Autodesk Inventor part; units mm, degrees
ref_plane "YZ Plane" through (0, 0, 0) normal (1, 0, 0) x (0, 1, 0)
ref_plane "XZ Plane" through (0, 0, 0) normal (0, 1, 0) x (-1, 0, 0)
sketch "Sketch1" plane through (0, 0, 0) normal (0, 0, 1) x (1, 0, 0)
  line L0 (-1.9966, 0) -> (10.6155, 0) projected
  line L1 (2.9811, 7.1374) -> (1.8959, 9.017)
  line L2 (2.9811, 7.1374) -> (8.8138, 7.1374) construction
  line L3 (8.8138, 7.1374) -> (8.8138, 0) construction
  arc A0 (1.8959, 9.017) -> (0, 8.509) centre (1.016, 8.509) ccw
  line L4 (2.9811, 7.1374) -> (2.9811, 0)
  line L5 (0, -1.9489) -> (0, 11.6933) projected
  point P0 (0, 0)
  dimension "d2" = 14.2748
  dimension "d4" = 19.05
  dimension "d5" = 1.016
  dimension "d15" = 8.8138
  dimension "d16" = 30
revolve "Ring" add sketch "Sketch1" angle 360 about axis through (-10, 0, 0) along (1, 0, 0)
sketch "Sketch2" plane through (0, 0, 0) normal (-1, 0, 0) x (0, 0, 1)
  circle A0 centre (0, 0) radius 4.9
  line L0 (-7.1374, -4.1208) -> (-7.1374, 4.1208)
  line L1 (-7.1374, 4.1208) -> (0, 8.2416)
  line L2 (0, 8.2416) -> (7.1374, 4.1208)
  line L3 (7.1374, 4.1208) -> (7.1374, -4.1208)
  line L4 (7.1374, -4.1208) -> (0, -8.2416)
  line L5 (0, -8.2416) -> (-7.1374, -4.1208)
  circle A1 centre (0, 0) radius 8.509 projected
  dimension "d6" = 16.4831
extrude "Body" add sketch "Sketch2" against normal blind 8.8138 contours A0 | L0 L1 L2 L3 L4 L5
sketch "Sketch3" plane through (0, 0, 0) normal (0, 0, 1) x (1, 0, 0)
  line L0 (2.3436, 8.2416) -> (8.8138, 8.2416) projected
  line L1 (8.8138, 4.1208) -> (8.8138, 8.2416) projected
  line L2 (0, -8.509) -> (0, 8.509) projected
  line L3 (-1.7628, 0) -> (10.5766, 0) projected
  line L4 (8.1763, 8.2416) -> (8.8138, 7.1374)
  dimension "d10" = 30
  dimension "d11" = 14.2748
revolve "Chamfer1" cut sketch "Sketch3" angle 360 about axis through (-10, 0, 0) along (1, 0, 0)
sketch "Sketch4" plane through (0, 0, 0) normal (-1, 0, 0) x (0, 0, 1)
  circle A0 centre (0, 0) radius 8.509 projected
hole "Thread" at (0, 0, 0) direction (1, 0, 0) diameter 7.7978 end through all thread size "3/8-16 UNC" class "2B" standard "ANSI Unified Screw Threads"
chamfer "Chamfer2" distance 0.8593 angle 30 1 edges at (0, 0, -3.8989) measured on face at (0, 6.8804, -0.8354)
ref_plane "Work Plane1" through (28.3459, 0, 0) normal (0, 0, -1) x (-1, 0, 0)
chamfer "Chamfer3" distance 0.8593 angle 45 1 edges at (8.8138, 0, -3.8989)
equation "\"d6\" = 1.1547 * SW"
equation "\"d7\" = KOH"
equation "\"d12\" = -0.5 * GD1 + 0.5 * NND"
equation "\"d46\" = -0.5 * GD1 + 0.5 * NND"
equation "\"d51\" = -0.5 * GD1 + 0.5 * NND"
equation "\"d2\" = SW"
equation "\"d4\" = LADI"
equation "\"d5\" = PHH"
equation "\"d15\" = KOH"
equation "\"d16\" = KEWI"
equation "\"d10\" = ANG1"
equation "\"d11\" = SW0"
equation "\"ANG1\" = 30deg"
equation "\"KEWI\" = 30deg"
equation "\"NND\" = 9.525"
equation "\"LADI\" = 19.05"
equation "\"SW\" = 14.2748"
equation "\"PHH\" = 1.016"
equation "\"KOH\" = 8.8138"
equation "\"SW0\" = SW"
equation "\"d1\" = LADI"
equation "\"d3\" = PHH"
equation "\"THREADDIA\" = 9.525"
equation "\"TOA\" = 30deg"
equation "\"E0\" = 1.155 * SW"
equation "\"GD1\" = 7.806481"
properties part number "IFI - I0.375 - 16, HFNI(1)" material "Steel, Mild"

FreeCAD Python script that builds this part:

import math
import FreeCAD as App
import Part
import Sketcher
from FreeCAD import Vector
Q = App.Units.Quantity


def edges_at(feature, points):
    """Names of the edges that pass closest to the given points."""
    edges = feature.Shape.Edges
    near = lambda p: min(range(len(edges)), key=lambda i: edges[i].distToShape(Part.Vertex(*p))[0])
    return sorted({f"Edge{near(p) + 1}" for p in points})

doc = App.newDocument("Part")
body = doc.addObject("PartDesign::Body", "Body")

# Sketch on XY plane
sketch1 = doc.addObject("Sketcher::SketchObject", "Sketch")
body.addObject(sketch1)
sketch1.AttachmentSupport = (doc.XY_Plane, [""])
sketch1.MapMode = "FlatFace"
sketch1.addGeometry([
    Part.LineSegment(Vector(0, 8.5, 0), Vector(0, 0, 0)),  # 0
    Part.LineSegment(Vector(0, 0, 0), Vector(3, 0, 0)),  # 1
    Part.LineSegment(Vector(3, 0, 0), Vector(3, 7.1, 0)),  # 2
    Part.LineSegment(Vector(3, 7.1, 0), Vector(1.9, 9, 0)),  # 3
    Part.ArcOfCircle(Part.Circle(Vector(1, 8.5, 0), Vector(0, 0, 1), 1), math.radians(30), math.radians(180)),  # 4
], False)
sketch1.addConstraint([
    Sketcher.Constraint("Coincident", 0, 2, 1, 1),
    Sketcher.Constraint("Coincident", 1, 2, 2, 1),
    Sketcher.Constraint("Coincident", 2, 2, 3, 1),
    Sketcher.Constraint("Tangent", 3, 2, 4, 1),
    Sketcher.Constraint("Tangent", 4, 2, 0, 1),
    Sketcher.Constraint("Vertical", 0),
    Sketcher.Constraint("Horizontal", 1),
    Sketcher.Constraint("Vertical", 2),
    Sketcher.Constraint("Coincident", 0, 2, -1, 1),
    Sketcher.Constraint("Radius", 4, Q("0.04 in")),
    Sketcher.Constraint("Angle", 3, Q("120.0003 deg")),
    Sketcher.Constraint("DistanceY", 0, 2, 0, 1, Q("0.335 in")),
    Sketcher.Constraint("DistanceY", 2, 1, 2, 2, Q("0.281 in")),
])
revolution = doc.addObject("PartDesign::Revolution", "Revolution")
body.addObject(revolution)
revolution.Profile = sketch1
revolution.ReferenceAxis = (sketch1, ["H_Axis"])
revolution.Angle = 360

# Sketch on YZ plane
sketch2 = doc.addObject("Sketcher::SketchObject", "Sketch001")
body.addObject(sketch2)
sketch2.AttachmentSupport = (doc.YZ_Plane, [""])
sketch2.MapMode = "FlatFace"
sketch2.addGeometry([
    Part.LineSegment(Vector(4, -7, 0), Vector(-4, -7, 0)),  # 0
    Part.LineSegment(Vector(-4, -7, 0), Vector(-8, 0, 0)),  # 1
    Part.LineSegment(Vector(-8, 0, 0), Vector(-4, 7, 0)),  # 2
    Part.LineSegment(Vector(-4, 7, 0), Vector(4, 7, 0)),  # 3
    Part.LineSegment(Vector(4, 7, 0), Vector(8, 0, 0)),  # 4
    Part.LineSegment(Vector(8, 0, 0), Vector(4, -7, 0)),  # 5
], False)
sketch2.addConstraint([
    Sketcher.Constraint("Coincident", 0, 2, 1, 1),
    Sketcher.Constraint("Coincident", 1, 2, 2, 1),
    Sketcher.Constraint("Coincident", 2, 2, 3, 1),
    Sketcher.Constraint("Coincident", 3, 2, 4, 1),
    Sketcher.Constraint("Coincident", 4, 2, 5, 1),
    Sketcher.Constraint("Coincident", 5, 2, 0, 1),
    Sketcher.Constraint("Horizontal", 0),
    Sketcher.Constraint("Horizontal", 3),
    Sketcher.Constraint("Symmetric", 0, 2, 3, 2, -1, 1),
    Sketcher.Constraint("Symmetric", 1, 2, 4, 2, -1, 1),
    Sketcher.Constraint("PointOnObject", 1, 2, -1),
    Sketcher.Constraint("Parallel", 2, 5),
    Sketcher.Constraint("Vertical", 0, 2, 2, 2),
    Sketcher.Constraint("Angle", 1, Q("120.0001 deg")),
    Sketcher.Constraint("DistanceX", 1, 2, 4, 2, 16.4832),
    Sketcher.Constraint("DistanceY", 0, 2, -1, 1, Q("0.281 in")),
])
pad1 = doc.addObject("PartDesign::Pad", "Pad")
body.addObject(pad1)
pad1.Profile = sketch2
pad1.Length = Q("0.347 in")

# Sketch on XY plane
sketch3 = doc.addObject("Sketcher::SketchObject", "Sketch002")
body.addObject(sketch3)
sketch3.AttachmentSupport = (doc.XY_Plane, [""])
sketch3.MapMode = "FlatFace"
sketch3.addGeometry([
    Part.LineSegment(Vector(8.8, 8.2, 0), Vector(8.2, 8.2, 0)),
    Part.LineSegment(Vector(8.2, 8.2, 0), Vector(8.8, 7.1, 0)),
    Part.LineSegment(Vector(8.8, 7.1, 0), Vector(8.8, 8.2, 0)),
], False)
sketch3.addConstraint([
    Sketcher.Constraint("Coincident", 0, 2, 1, 1),
    Sketcher.Constraint("Coincident", 1, 2, 2, 1),
    Sketcher.Constraint("Coincident", 2, 2, 0, 1),
    Sketcher.Constraint("Horizontal", 0),
    Sketcher.Constraint("Vertical", 2),
    Sketcher.Constraint("Angle", 1, Q("-60.0004 deg")),
    Sketcher.Constraint("DistanceX", 0, 2, 0, 1, Q("0.0251 in")),
    Sketcher.Constraint("DistanceX", -1, 1, 1, 2, Q("0.347 in")),
    Sketcher.Constraint("DistanceY", -1, 1, 1, 2, Q("0.281 in")),
])
groove = doc.addObject("PartDesign::Groove", "Groove")
body.addObject(groove)
groove.Profile = sketch3
groove.ReferenceAxis = (sketch3, ["H_Axis"])
groove.Angle = 360

# Sketch on YZ plane
sketch4 = doc.addObject("Sketcher::SketchObject", "Sketch003")
body.addObject(sketch4)
sketch4.AttachmentSupport = (doc.YZ_Plane, [""])
sketch4.MapMode = "FlatFace"
sketch4.addGeometry(Part.Circle(Vector(0, 0, 0), Vector(0, 0, 1), 3.9), False)
sketch4.addConstraint([
    Sketcher.Constraint("Coincident", 0, 3, -1, 1),
    Sketcher.Constraint("Diameter", 0, Q("0.307 in")),
])
doc.recompute()
hole = doc.addObject("PartDesign::Hole", "Hole")
body.addObject(hole)
hole.Profile = sketch4
hole.ThreadType = "None"
hole.Diameter = Q("0.307 in")
hole.DepthType = "ThroughAll"
hole.Reversed = True
doc.recompute()

chamfer = doc.addObject("PartDesign::Chamfer", "Chamfer")
body.addObject(chamfer)
chamfer.Base = (hole, edges_at(hole, [(0, 0, -3.899)]))
chamfer.ChamferType = "Distance and Angle"
chamfer.Size = 0.8593
chamfer.Angle = 30
doc.recompute()

chamfer2 = doc.addObject("PartDesign::Chamfer", "Chamfer001")
body.addObject(chamfer2)
chamfer2.Base = (chamfer, edges_at(chamfer, [(8.814, 0, -3.899)]))
chamfer2.Size = 0.8593

doc.recompute()
